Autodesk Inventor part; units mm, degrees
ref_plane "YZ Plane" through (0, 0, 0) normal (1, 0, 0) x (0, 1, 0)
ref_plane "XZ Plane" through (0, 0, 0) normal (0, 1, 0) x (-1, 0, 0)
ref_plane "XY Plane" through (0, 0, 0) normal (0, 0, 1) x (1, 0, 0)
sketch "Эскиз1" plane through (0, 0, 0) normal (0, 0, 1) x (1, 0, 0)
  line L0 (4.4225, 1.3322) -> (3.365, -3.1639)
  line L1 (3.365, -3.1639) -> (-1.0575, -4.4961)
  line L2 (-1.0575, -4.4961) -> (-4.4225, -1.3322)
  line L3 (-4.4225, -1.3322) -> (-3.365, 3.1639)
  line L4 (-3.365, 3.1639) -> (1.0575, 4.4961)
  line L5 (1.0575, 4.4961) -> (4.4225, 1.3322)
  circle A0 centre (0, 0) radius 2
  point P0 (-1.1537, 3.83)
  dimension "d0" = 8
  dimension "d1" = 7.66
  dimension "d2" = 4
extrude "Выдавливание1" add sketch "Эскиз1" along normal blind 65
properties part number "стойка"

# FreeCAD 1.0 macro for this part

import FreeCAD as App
import Part
import Sketcher

V = App.Vector


def add_polygon(sketch, points):
    """Adds a closed chain of lines whose ends are joined by coincident constraints."""
    first, n = sketch.GeometryCount, len(points)
    for a, b in zip(points, points[1:] + points[:1]):
        sketch.addGeometry(Part.LineSegment(App.Vector(*a, 0), App.Vector(*b, 0)), False)
    for i in range(n):
        sketch.addConstraint(Sketcher.Constraint("Coincident", first + i, 2, first + (i + 1) % n, 1))

doc = App.newDocument("Part")
body = doc.addObject("PartDesign::Body", "Body")

# Sketch on XY plane
sketch1 = doc.addObject("Sketcher::SketchObject", "Sketch")
body.addObject(sketch1)
sketch1.AttachmentSupport = (doc.XY_Plane, [""])
sketch1.MapMode = "FlatFace"
add_polygon(sketch1, [(3.4, -3.2), (4.4, 1.3), (1.1, 4.5), (-3.4, 3.2), (-4.4, -1.3), (-1.1, -4.5)])  # lines 0-5
sketch1.addGeometry(Part.Circle(V(0, 0, 0), V(0, 0, 1), 2), False)  # 6
sketch1.addConstraint([
    Sketcher.Constraint("Coincident", 6, 3, -1, 1),
    Sketcher.Constraint("Symmetric", 0, 2, 3, 2, -1, 1),
    Sketcher.Constraint("Symmetric", 1, 2, 4, 2, -1, 1),
    Sketcher.Constraint("Symmetric", 2, 2, 5, 2, -1, 1),
    Sketcher.Constraint("Equal", 0, 1),
    Sketcher.Constraint("Equal", 1, 2),
    Sketcher.Constraint("Diameter", 6, 4.0),
    Sketcher.Constraint("DistanceY", 4, 2, 2, 2, 7.66),
    Sketcher.Constraint("DistanceX", 3, 2, 1, 2, 5.48),
    Sketcher.Constraint("DistanceY", -1, 1, 1, 2, 4.496),
    Sketcher.Constraint("DistanceX", 2, 2, -1, 1, 3.365),
])
pad1 = doc.addObject("PartDesign::Pad", "Pad")
body.addObject(pad1)
pad1.Profile = sketch1
pad1.Length = 65

doc.recompute()
